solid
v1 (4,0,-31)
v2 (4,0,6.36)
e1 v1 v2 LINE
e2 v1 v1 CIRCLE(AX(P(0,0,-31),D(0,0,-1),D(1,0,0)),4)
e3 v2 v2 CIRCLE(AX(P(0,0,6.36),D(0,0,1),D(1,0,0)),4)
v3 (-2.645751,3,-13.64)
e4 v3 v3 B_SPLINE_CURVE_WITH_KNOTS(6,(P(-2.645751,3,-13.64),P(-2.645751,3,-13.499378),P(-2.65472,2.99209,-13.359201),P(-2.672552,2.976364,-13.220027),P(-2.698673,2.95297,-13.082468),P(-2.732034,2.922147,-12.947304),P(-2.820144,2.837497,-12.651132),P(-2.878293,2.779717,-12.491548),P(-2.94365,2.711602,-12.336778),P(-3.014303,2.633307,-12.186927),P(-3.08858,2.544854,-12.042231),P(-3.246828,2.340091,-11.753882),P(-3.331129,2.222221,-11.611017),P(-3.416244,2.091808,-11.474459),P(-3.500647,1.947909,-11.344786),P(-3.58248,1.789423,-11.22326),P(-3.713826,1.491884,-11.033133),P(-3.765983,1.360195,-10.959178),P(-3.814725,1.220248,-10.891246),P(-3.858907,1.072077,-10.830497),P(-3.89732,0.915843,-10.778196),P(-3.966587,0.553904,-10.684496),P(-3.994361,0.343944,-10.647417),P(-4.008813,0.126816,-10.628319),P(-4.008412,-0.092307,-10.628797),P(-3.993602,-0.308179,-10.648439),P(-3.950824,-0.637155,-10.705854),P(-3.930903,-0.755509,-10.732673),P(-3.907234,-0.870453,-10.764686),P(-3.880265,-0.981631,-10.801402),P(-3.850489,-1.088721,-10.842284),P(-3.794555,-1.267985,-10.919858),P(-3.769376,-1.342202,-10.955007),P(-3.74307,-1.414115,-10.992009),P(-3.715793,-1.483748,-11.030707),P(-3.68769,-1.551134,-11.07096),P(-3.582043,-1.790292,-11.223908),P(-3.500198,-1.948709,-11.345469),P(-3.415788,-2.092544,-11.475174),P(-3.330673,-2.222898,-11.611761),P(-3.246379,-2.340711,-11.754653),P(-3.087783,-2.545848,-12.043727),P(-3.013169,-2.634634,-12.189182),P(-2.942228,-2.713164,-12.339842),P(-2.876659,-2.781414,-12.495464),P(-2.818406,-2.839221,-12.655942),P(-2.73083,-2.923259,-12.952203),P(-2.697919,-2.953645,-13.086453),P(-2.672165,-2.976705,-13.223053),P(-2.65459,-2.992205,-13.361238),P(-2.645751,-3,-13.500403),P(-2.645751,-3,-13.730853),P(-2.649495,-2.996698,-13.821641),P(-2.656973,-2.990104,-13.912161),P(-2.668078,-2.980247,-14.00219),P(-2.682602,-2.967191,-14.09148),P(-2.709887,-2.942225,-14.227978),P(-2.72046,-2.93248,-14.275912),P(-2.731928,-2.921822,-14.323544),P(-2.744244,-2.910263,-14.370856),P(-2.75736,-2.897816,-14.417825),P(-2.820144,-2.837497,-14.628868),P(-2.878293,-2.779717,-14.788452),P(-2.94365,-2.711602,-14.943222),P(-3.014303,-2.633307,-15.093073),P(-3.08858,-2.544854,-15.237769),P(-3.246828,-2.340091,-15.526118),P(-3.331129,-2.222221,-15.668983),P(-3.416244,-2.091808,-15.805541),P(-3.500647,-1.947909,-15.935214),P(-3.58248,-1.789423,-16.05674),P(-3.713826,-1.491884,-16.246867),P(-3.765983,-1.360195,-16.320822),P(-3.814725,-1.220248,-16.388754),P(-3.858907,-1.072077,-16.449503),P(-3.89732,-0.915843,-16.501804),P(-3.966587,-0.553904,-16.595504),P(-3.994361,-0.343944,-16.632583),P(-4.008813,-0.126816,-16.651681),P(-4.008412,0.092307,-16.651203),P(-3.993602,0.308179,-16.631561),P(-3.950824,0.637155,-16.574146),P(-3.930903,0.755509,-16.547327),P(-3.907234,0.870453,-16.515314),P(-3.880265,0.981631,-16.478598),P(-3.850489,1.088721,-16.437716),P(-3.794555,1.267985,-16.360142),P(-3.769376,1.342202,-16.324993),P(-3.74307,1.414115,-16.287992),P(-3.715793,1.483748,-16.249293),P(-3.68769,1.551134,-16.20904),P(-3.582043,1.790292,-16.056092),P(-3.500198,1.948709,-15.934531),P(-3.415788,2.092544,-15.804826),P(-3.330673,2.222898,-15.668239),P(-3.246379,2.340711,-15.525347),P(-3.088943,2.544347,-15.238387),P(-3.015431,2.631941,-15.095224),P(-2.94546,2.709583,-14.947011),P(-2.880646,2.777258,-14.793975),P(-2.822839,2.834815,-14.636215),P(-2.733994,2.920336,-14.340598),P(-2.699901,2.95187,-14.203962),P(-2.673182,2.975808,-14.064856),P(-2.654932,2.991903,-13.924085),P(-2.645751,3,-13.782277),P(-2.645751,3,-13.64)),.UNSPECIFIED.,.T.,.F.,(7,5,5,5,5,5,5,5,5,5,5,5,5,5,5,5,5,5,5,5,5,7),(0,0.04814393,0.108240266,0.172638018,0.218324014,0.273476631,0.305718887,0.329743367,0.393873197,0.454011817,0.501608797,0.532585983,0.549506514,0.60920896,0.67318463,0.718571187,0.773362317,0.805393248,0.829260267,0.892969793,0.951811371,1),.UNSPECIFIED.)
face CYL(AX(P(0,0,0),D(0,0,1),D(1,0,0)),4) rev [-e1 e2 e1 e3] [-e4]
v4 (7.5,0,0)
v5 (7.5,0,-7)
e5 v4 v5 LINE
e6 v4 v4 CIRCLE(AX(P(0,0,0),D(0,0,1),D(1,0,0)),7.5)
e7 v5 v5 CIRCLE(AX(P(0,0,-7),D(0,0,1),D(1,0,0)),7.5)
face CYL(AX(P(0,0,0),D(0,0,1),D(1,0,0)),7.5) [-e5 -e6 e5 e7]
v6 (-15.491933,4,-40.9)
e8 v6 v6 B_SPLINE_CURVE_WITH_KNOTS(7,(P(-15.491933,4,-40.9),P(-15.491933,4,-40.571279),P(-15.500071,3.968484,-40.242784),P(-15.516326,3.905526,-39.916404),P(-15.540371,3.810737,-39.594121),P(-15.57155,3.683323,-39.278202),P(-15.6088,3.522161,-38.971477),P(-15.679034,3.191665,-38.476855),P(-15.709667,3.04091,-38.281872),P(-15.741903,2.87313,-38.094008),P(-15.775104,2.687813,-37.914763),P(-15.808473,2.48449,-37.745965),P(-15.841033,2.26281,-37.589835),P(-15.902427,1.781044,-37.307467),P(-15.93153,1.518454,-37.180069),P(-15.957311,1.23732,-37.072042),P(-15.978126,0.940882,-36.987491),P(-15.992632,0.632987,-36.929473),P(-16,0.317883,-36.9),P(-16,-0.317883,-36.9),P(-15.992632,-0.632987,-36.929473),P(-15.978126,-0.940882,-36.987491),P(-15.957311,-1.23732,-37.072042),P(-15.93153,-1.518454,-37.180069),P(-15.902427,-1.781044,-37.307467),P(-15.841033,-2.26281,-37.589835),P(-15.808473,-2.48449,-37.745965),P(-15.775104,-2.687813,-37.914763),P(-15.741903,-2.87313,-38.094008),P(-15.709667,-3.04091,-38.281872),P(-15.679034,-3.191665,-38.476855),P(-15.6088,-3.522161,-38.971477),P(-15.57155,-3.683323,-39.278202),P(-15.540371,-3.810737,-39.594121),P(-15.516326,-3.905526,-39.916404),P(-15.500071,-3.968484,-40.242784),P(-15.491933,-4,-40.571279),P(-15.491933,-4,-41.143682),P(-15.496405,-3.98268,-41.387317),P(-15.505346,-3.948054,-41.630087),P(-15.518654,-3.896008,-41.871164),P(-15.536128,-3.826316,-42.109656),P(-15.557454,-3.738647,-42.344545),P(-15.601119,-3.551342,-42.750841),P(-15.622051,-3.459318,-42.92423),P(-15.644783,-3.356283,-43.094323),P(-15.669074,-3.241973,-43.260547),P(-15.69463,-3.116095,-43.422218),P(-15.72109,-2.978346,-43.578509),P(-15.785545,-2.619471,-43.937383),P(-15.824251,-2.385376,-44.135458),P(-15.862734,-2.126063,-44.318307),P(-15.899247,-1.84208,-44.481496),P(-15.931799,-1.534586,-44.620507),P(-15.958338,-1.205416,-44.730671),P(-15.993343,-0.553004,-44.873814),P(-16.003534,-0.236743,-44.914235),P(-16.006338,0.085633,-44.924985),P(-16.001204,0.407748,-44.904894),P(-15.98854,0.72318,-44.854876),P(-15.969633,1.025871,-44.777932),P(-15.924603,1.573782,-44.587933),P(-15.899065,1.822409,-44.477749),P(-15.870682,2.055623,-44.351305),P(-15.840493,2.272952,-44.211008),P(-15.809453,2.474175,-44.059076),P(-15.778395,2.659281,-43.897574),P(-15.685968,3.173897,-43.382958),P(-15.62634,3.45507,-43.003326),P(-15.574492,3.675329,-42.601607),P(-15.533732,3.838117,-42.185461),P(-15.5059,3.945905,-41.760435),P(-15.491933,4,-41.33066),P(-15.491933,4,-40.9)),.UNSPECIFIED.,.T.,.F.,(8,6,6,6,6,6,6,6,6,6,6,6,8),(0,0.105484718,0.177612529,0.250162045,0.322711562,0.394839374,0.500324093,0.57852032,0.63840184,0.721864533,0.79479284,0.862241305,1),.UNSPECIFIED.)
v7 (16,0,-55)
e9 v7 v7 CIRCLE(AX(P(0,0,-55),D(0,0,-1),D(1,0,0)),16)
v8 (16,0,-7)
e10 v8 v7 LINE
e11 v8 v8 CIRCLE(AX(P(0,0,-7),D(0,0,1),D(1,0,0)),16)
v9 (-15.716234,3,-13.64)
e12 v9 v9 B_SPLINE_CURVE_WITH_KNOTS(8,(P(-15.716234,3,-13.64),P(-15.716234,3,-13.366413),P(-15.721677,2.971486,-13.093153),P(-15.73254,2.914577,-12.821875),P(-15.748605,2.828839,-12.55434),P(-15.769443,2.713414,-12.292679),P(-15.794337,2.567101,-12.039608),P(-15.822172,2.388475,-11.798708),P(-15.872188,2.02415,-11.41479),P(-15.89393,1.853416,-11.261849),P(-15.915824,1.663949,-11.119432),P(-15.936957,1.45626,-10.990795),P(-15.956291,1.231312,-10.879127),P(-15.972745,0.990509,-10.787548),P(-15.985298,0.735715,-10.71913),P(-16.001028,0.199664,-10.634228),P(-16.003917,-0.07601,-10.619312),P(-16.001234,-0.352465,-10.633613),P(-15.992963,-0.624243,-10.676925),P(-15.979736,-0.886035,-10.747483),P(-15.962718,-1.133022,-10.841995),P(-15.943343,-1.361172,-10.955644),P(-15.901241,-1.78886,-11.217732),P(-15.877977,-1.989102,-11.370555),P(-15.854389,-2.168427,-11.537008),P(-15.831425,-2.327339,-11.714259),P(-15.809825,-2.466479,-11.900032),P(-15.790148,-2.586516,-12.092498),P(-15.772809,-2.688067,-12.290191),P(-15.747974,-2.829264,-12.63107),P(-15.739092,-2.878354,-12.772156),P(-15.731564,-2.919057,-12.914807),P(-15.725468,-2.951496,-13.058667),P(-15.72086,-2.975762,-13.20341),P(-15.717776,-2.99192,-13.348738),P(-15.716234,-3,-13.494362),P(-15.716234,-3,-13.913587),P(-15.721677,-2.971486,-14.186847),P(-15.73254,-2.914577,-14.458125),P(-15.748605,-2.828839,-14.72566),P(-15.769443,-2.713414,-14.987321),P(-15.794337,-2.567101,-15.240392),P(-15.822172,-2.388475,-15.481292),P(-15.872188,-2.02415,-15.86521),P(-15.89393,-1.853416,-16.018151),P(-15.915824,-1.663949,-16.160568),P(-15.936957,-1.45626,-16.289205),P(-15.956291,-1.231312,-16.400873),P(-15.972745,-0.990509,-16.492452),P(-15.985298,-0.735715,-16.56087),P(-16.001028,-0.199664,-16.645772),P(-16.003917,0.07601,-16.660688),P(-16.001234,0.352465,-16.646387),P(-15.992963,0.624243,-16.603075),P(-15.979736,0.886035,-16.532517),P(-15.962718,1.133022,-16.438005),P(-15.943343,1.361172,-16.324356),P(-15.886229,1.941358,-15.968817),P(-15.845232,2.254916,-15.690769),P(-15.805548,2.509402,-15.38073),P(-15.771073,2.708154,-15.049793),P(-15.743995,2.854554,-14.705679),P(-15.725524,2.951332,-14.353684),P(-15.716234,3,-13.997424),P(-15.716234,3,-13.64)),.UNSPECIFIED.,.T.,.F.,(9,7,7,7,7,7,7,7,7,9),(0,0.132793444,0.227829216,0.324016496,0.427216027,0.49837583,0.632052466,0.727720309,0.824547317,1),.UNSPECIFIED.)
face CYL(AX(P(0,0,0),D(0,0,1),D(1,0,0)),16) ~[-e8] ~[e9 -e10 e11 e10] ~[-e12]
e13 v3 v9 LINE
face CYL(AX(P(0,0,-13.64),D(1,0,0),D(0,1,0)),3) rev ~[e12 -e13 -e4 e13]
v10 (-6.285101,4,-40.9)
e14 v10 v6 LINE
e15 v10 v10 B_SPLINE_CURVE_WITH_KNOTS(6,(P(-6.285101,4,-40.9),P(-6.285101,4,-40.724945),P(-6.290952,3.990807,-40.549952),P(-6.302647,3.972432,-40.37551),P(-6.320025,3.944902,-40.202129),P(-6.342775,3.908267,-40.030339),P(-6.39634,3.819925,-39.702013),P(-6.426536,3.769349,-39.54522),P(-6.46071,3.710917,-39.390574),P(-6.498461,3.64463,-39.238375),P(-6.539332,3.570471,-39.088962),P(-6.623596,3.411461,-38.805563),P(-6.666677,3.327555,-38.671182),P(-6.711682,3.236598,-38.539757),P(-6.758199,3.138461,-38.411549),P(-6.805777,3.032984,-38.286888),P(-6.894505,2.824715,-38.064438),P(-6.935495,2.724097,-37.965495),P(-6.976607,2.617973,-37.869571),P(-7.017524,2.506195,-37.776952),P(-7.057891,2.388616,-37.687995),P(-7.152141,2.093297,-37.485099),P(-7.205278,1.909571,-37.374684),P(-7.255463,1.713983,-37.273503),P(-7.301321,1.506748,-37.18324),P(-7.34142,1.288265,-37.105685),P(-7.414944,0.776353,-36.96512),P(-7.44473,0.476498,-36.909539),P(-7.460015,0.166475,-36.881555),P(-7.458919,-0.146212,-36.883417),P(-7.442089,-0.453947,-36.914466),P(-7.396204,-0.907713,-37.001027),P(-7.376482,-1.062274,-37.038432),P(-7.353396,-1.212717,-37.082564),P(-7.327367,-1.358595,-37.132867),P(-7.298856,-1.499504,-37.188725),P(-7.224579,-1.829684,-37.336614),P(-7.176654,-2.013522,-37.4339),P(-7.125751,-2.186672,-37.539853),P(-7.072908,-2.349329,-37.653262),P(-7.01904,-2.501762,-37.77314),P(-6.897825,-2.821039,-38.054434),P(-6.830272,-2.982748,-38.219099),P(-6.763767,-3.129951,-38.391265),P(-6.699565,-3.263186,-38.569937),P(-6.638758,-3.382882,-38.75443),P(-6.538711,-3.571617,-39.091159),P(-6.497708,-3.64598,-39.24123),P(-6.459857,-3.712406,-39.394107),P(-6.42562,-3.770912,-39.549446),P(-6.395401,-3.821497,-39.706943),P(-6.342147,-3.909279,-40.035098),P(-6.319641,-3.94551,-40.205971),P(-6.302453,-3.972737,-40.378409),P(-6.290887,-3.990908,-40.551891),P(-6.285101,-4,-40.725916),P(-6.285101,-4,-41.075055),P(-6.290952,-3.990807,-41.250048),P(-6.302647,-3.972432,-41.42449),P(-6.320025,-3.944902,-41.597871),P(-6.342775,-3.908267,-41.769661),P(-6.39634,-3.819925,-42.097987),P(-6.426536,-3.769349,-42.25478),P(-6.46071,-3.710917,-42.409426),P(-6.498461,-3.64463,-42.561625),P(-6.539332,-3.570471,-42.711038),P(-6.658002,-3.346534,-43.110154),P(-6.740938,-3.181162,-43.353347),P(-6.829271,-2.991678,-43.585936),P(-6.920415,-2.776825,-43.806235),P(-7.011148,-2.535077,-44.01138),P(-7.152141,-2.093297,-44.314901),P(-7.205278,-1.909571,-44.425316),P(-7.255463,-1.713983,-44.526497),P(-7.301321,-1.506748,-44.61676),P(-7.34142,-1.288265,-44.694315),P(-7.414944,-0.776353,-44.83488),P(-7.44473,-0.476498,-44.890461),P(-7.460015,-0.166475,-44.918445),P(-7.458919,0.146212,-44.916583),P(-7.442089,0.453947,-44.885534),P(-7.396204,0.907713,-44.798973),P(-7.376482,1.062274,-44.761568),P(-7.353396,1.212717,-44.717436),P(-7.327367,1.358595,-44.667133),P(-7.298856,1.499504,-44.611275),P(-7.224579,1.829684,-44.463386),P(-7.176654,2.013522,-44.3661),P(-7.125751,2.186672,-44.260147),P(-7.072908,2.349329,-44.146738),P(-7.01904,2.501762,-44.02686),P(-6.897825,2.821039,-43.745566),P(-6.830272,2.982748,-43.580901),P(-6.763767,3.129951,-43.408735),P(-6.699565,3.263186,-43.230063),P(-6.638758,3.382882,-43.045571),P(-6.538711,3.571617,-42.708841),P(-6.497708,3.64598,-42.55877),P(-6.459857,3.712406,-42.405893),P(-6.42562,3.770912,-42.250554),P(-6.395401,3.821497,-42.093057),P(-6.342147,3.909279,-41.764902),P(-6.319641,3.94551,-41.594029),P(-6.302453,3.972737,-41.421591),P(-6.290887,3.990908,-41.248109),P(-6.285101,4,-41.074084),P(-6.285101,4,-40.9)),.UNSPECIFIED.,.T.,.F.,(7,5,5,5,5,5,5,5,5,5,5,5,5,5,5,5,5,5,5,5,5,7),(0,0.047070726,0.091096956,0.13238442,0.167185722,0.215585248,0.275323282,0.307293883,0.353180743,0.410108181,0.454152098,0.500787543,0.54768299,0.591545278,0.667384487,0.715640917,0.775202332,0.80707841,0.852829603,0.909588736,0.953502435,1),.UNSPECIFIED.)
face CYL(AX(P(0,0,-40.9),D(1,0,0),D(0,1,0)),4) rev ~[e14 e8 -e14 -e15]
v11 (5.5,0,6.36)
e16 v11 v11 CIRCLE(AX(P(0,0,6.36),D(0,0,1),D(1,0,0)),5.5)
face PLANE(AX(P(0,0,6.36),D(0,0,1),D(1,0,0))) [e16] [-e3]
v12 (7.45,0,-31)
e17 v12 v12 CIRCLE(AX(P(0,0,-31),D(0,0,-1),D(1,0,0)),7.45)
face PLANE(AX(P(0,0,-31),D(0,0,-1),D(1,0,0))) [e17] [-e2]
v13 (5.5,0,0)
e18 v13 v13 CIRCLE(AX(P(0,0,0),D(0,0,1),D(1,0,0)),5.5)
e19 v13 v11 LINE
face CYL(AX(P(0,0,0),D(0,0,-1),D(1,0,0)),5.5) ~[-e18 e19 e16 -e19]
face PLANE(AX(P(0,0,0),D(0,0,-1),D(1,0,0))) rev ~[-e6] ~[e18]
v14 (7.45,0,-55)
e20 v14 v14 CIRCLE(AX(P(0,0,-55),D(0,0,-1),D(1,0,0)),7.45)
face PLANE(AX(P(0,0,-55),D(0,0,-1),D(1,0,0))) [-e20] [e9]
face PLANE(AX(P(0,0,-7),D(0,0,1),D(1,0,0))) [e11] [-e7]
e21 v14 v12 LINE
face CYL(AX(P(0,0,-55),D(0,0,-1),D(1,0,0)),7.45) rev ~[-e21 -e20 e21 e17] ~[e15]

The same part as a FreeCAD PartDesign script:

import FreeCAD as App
import Part
import Sketcher
Q = App.Units.Quantity

doc = App.newDocument("Part")
params = doc.addObject("Spreadsheet::Sheet", "Params")
for row, (alias, value) in enumerate([
    ("sketch1_diameter", "11 mm"),
    ("sketch1_diameter2", "8 mm"),
    ("pad1_length", "6.36 mm"),
    ("sketch2_diameter", "32 mm"),
    ("sketch2_diameter2", "8 mm"),
    ("pad2_length", "55 mm"),
    ("sketch3_diameter", "15 mm"),
    ("pocket1_length", "7 mm"),
    ("sketch4_diameter", "6 mm"),
    ("pocket2_length", "25 mm"),
    ("sketch5_diameter", "8 mm"),
    ("sketch5_diameter2", "14.9 mm"),
    ("pocket3_length", "24 mm"),
    ("sketch6_diameter", "8 mm"),
    ("pocket4_length", "25 mm"),
], start=1):
    params.set(f"A{row}", alias)
    params.set(f"B{row}", "=" + value)
    params.setAlias(f"B{row}", alias)

body = doc.addObject("PartDesign::Body", "Body")

sketch1 = doc.addObject("Sketcher::SketchObject", "Sketch")
body.addObject(sketch1)
sketch1.AttachmentSupport = (doc.XY_Plane, [""])
sketch1.MapMode = "FlatFace"
sketch1.addGeometry([
    Part.Circle(App.Vector(0, 0, 0), App.Vector(0, 0, 1), 5.5),
    Part.Circle(App.Vector(0, 0, 0), App.Vector(0, 0, 1), 4),
], False)
sketch1.addConstraint([
    Sketcher.Constraint("Coincident", 0, 3, -1, 1),
    Sketcher.Constraint("Coincident", 1, 3, -1, 1),
    Sketcher.Constraint("Diameter", 0, Q("11 mm")),
    Sketcher.Constraint("Diameter", 1, Q("8 mm")),
])
sketch1.setExpression("Constraints[2]", "Params.sketch1_diameter")
sketch1.setExpression("Constraints[3]", "Params.sketch1_diameter2")
pad1 = doc.addObject("PartDesign::Pad", "Pad")
body.addObject(pad1)
pad1.Profile = sketch1
pad1.setExpression("Length", "Params.pad1_length")

sketch2 = doc.addObject("Sketcher::SketchObject", "Sketch001")
body.addObject(sketch2)
sketch2.AttachmentSupport = (doc.XY_Plane, [""])
sketch2.MapMode = "FlatFace"
sketch2.addGeometry([
    Part.Circle(App.Vector(0, 0, 0), App.Vector(0, 0, 1), 16),
    Part.Circle(App.Vector(0, 0, 0), App.Vector(0, 0, 1), 4),
], False)
sketch2.addConstraint([
    Sketcher.Constraint("Coincident", 0, 3, -1, 1),
    Sketcher.Constraint("Coincident", 1, 3, -1, 1),
    Sketcher.Constraint("Diameter", 0, Q("32 mm")),
    Sketcher.Constraint("Diameter", 1, Q("8 mm")),
])
sketch2.setExpression("Constraints[2]", "Params.sketch2_diameter")
sketch2.setExpression("Constraints[3]", "Params.sketch2_diameter2")
pad2 = doc.addObject("PartDesign::Pad", "Pad001")
body.addObject(pad2)
pad2.Profile = sketch2
pad2.setExpression("Length", "Params.pad2_length")
pad2.Reversed = True

sketch3 = doc.addObject("Sketcher::SketchObject", "Sketch002")
body.addObject(sketch3)
sketch3.AttachmentSupport = (doc.XY_Plane, [""])
sketch3.MapMode = "FlatFace"
sketch3.addGeometry([
    Part.Circle(App.Vector(0, 0, 0), App.Vector(0, 0, 1), 36),
    Part.Circle(App.Vector(0, 0, 0), App.Vector(0, 0, 1), 8),
], False)
sketch3.addConstraint([
    Sketcher.Constraint("Coincident", 0, 3, -1, 1),
    Sketcher.Constraint("Coincident", 1, 3, -1, 1),
    Sketcher.Constraint("Diameter", 1, Q("15 mm")),
    Sketcher.Constraint("Diameter", 0, Q("72.583077 mm")),
])
sketch3.setExpression("Constraints[2]", "Params.sketch3_diameter")
pocket1 = doc.addObject("PartDesign::Pocket", "Pocket")
body.addObject(pocket1)
pocket1.Profile = sketch3
pocket1.setExpression("Length", "Params.pocket1_length")

sketch4 = doc.addObject("Sketcher::SketchObject", "Sketch003")
body.addObject(sketch4)
sketch4.AttachmentSupport = (doc.YZ_Plane, [""])
sketch4.MapMode = "FlatFace"
sketch4.addGeometry(Part.Circle(App.Vector(0, -13.6, 0), App.Vector(0, 0, 1), 3), False)
sketch4.addConstraint([
    Sketcher.Constraint("PointOnObject", 0, 3, -2),
    Sketcher.Constraint("Diameter", 0, Q("6 mm")),
    Sketcher.Constraint("DistanceY", 0, 3, -1, 1, Q("13.64 mm")),
])
sketch4.setExpression("Constraints[1]", "Params.sketch4_diameter")
pocket2 = doc.addObject("PartDesign::Pocket", "Pocket001")
body.addObject(pocket2)
pocket2.Profile = sketch4
pocket2.setExpression("Length", "Params.pocket2_length")

sketch5 = doc.addObject("Sketcher::SketchObject", "Sketch004")
body.addObject(sketch5)
sketch5.AttachmentSupport = (doc.XY_Plane, [""])
sketch5.MapMode = "FlatFace"
sketch5.AttachmentOffset = App.Placement(App.Vector(0, 0, -55), App.Rotation())
sketch5.addGeometry([
    Part.Circle(App.Vector(0, 0, 0), App.Vector(0, 0, 1), 7.5),
    Part.Circle(App.Vector(0, 0, 0), App.Vector(0, 0, 1), 4),
], False)
sketch5.addConstraint([
    Sketcher.Constraint("Coincident", 0, 3, -1, 1),
    Sketcher.Constraint("Coincident", 1, 3, -1, 1),
    Sketcher.Constraint("Diameter", 1, Q("8 mm")),
    Sketcher.Constraint("Diameter", 0, Q("14.9 mm")),
])
sketch5.setExpression("Constraints[2]", "Params.sketch5_diameter")
sketch5.setExpression("Constraints[3]", "Params.sketch5_diameter2")
pocket3 = doc.addObject("PartDesign::Pocket", "Pocket002")
body.addObject(pocket3)
pocket3.Profile = sketch5
pocket3.setExpression("Length", "Params.pocket3_length")
pocket3.Reversed = True

sketch6 = doc.addObject("Sketcher::SketchObject", "Sketch005")
body.addObject(sketch6)
sketch6.AttachmentSupport = (doc.YZ_Plane, [""])
sketch6.MapMode = "FlatFace"
sketch6.addGeometry(Part.Circle(App.Vector(0, -40.9, 0), App.Vector(0, 0, 1), 4), False)
sketch6.addConstraint([
    Sketcher.Constraint("PointOnObject", 0, 3, -2),
    Sketcher.Constraint("Diameter", 0, Q("8 mm")),
    Sketcher.Constraint("DistanceY", 0, 3, -1, 1, Q("40.9 mm")),
])
sketch6.setExpression("Constraints[1]", "Params.sketch6_diameter")
pocket4 = doc.addObject("PartDesign::Pocket", "Pocket003")
body.addObject(pocket4)
pocket4.Profile = sketch6
pocket4.setExpression("Length", "Params.pocket4_length")

doc.recompute()
